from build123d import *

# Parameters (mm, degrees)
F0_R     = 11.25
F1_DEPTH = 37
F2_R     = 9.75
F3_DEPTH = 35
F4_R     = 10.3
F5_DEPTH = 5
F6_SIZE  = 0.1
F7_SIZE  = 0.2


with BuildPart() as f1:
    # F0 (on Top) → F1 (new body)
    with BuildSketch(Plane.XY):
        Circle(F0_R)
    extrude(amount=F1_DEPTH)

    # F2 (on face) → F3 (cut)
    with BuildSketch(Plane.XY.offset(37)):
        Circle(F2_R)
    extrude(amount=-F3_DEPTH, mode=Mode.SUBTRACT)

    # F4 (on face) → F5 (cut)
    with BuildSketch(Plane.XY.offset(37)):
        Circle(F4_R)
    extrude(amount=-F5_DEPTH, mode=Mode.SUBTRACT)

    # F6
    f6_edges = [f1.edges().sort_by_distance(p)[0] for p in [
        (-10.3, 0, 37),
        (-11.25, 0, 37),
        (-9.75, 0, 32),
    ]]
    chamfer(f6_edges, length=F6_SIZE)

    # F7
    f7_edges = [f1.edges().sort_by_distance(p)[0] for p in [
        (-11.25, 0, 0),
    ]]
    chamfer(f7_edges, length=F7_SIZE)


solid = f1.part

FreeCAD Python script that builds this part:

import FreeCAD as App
import Part
import Sketcher

V = App.Vector


def edges_at(feature, points):
    """Names of the edges that pass closest to the given points."""
    edges = feature.Shape.Edges
    near = lambda p: min(range(len(edges)), key=lambda i: edges[i].distToShape(Part.Vertex(*p))[0])
    return sorted({f"Edge{near(p) + 1}" for p in points})

doc = App.newDocument("Part")
body = doc.addObject("PartDesign::Body", "Body")

# Sketch on XY plane
sketch1 = body.newObject("Sketcher::SketchObject", "Sketch")
sketch1.AttachmentSupport = (doc.getObject("XY_Plane"), [""])
sketch1.MapMode = "FlatFace"
sketch1.addGeometry(Part.Circle(V(0, 0, 0), V(0, 0, 1), 11.25), False)
sketch1.addConstraint([
    Sketcher.Constraint("Coincident", 0, 3, -1, 1),
    Sketcher.Constraint("Diameter", 0, 22.5),
])
pad1 = body.newObject("PartDesign::Pad", "Pad")
pad1.Profile = sketch1
pad1.Length = 37

# Sketch on XY plane
sketch2 = body.newObject("Sketcher::SketchObject", "Sketch001")
sketch2.AttachmentSupport = (doc.getObject("XY_Plane"), [""])
sketch2.MapMode = "FlatFace"
sketch2.AttachmentOffset = App.Placement(V(0, 0, 37), App.Rotation())
sketch2.addGeometry(Part.Circle(V(0, 0, 0), V(0, 0, 1), 9.75), False)
sketch2.addConstraint([
    Sketcher.Constraint("Coincident", 0, 3, -1, 1),
    Sketcher.Constraint("Diameter", 0, 19.5),
])
pocket1 = body.newObject("PartDesign::Pocket", "Pocket")
pocket1.Profile = sketch2
pocket1.Length = 35

# Sketch on XY plane
sketch3 = body.newObject("Sketcher::SketchObject", "Sketch002")
sketch3.AttachmentSupport = (doc.getObject("XY_Plane"), [""])
sketch3.MapMode = "FlatFace"
sketch3.AttachmentOffset = App.Placement(V(0, 0, 37), App.Rotation())
sketch3.addGeometry(Part.Circle(V(0, 0, 0), V(0, 0, 1), 10.3), False)
sketch3.addConstraint([
    Sketcher.Constraint("Coincident", 0, 3, -1, 1),
    Sketcher.Constraint("Diameter", 0, 20.6),
])
pocket2 = body.newObject("PartDesign::Pocket", "Pocket001")
pocket2.Profile = sketch3
pocket2.Length = 5
doc.recompute()

chamfer = body.newObject("PartDesign::Chamfer", "Chamfer")
chamfer.Base = (pocket2, edges_at(pocket2, [(-10.3, 0, 37), (-11.25, 0, 37), (-9.75, 0, 32)]))
chamfer.Size = 0.1
doc.recompute()

chamfer2 = body.newObject("PartDesign::Chamfer", "Chamfer001")
chamfer2.Base = (chamfer, edges_at(chamfer, [(-11.25, 0, 0)]))
chamfer2.Size = 0.2

doc.recompute()
